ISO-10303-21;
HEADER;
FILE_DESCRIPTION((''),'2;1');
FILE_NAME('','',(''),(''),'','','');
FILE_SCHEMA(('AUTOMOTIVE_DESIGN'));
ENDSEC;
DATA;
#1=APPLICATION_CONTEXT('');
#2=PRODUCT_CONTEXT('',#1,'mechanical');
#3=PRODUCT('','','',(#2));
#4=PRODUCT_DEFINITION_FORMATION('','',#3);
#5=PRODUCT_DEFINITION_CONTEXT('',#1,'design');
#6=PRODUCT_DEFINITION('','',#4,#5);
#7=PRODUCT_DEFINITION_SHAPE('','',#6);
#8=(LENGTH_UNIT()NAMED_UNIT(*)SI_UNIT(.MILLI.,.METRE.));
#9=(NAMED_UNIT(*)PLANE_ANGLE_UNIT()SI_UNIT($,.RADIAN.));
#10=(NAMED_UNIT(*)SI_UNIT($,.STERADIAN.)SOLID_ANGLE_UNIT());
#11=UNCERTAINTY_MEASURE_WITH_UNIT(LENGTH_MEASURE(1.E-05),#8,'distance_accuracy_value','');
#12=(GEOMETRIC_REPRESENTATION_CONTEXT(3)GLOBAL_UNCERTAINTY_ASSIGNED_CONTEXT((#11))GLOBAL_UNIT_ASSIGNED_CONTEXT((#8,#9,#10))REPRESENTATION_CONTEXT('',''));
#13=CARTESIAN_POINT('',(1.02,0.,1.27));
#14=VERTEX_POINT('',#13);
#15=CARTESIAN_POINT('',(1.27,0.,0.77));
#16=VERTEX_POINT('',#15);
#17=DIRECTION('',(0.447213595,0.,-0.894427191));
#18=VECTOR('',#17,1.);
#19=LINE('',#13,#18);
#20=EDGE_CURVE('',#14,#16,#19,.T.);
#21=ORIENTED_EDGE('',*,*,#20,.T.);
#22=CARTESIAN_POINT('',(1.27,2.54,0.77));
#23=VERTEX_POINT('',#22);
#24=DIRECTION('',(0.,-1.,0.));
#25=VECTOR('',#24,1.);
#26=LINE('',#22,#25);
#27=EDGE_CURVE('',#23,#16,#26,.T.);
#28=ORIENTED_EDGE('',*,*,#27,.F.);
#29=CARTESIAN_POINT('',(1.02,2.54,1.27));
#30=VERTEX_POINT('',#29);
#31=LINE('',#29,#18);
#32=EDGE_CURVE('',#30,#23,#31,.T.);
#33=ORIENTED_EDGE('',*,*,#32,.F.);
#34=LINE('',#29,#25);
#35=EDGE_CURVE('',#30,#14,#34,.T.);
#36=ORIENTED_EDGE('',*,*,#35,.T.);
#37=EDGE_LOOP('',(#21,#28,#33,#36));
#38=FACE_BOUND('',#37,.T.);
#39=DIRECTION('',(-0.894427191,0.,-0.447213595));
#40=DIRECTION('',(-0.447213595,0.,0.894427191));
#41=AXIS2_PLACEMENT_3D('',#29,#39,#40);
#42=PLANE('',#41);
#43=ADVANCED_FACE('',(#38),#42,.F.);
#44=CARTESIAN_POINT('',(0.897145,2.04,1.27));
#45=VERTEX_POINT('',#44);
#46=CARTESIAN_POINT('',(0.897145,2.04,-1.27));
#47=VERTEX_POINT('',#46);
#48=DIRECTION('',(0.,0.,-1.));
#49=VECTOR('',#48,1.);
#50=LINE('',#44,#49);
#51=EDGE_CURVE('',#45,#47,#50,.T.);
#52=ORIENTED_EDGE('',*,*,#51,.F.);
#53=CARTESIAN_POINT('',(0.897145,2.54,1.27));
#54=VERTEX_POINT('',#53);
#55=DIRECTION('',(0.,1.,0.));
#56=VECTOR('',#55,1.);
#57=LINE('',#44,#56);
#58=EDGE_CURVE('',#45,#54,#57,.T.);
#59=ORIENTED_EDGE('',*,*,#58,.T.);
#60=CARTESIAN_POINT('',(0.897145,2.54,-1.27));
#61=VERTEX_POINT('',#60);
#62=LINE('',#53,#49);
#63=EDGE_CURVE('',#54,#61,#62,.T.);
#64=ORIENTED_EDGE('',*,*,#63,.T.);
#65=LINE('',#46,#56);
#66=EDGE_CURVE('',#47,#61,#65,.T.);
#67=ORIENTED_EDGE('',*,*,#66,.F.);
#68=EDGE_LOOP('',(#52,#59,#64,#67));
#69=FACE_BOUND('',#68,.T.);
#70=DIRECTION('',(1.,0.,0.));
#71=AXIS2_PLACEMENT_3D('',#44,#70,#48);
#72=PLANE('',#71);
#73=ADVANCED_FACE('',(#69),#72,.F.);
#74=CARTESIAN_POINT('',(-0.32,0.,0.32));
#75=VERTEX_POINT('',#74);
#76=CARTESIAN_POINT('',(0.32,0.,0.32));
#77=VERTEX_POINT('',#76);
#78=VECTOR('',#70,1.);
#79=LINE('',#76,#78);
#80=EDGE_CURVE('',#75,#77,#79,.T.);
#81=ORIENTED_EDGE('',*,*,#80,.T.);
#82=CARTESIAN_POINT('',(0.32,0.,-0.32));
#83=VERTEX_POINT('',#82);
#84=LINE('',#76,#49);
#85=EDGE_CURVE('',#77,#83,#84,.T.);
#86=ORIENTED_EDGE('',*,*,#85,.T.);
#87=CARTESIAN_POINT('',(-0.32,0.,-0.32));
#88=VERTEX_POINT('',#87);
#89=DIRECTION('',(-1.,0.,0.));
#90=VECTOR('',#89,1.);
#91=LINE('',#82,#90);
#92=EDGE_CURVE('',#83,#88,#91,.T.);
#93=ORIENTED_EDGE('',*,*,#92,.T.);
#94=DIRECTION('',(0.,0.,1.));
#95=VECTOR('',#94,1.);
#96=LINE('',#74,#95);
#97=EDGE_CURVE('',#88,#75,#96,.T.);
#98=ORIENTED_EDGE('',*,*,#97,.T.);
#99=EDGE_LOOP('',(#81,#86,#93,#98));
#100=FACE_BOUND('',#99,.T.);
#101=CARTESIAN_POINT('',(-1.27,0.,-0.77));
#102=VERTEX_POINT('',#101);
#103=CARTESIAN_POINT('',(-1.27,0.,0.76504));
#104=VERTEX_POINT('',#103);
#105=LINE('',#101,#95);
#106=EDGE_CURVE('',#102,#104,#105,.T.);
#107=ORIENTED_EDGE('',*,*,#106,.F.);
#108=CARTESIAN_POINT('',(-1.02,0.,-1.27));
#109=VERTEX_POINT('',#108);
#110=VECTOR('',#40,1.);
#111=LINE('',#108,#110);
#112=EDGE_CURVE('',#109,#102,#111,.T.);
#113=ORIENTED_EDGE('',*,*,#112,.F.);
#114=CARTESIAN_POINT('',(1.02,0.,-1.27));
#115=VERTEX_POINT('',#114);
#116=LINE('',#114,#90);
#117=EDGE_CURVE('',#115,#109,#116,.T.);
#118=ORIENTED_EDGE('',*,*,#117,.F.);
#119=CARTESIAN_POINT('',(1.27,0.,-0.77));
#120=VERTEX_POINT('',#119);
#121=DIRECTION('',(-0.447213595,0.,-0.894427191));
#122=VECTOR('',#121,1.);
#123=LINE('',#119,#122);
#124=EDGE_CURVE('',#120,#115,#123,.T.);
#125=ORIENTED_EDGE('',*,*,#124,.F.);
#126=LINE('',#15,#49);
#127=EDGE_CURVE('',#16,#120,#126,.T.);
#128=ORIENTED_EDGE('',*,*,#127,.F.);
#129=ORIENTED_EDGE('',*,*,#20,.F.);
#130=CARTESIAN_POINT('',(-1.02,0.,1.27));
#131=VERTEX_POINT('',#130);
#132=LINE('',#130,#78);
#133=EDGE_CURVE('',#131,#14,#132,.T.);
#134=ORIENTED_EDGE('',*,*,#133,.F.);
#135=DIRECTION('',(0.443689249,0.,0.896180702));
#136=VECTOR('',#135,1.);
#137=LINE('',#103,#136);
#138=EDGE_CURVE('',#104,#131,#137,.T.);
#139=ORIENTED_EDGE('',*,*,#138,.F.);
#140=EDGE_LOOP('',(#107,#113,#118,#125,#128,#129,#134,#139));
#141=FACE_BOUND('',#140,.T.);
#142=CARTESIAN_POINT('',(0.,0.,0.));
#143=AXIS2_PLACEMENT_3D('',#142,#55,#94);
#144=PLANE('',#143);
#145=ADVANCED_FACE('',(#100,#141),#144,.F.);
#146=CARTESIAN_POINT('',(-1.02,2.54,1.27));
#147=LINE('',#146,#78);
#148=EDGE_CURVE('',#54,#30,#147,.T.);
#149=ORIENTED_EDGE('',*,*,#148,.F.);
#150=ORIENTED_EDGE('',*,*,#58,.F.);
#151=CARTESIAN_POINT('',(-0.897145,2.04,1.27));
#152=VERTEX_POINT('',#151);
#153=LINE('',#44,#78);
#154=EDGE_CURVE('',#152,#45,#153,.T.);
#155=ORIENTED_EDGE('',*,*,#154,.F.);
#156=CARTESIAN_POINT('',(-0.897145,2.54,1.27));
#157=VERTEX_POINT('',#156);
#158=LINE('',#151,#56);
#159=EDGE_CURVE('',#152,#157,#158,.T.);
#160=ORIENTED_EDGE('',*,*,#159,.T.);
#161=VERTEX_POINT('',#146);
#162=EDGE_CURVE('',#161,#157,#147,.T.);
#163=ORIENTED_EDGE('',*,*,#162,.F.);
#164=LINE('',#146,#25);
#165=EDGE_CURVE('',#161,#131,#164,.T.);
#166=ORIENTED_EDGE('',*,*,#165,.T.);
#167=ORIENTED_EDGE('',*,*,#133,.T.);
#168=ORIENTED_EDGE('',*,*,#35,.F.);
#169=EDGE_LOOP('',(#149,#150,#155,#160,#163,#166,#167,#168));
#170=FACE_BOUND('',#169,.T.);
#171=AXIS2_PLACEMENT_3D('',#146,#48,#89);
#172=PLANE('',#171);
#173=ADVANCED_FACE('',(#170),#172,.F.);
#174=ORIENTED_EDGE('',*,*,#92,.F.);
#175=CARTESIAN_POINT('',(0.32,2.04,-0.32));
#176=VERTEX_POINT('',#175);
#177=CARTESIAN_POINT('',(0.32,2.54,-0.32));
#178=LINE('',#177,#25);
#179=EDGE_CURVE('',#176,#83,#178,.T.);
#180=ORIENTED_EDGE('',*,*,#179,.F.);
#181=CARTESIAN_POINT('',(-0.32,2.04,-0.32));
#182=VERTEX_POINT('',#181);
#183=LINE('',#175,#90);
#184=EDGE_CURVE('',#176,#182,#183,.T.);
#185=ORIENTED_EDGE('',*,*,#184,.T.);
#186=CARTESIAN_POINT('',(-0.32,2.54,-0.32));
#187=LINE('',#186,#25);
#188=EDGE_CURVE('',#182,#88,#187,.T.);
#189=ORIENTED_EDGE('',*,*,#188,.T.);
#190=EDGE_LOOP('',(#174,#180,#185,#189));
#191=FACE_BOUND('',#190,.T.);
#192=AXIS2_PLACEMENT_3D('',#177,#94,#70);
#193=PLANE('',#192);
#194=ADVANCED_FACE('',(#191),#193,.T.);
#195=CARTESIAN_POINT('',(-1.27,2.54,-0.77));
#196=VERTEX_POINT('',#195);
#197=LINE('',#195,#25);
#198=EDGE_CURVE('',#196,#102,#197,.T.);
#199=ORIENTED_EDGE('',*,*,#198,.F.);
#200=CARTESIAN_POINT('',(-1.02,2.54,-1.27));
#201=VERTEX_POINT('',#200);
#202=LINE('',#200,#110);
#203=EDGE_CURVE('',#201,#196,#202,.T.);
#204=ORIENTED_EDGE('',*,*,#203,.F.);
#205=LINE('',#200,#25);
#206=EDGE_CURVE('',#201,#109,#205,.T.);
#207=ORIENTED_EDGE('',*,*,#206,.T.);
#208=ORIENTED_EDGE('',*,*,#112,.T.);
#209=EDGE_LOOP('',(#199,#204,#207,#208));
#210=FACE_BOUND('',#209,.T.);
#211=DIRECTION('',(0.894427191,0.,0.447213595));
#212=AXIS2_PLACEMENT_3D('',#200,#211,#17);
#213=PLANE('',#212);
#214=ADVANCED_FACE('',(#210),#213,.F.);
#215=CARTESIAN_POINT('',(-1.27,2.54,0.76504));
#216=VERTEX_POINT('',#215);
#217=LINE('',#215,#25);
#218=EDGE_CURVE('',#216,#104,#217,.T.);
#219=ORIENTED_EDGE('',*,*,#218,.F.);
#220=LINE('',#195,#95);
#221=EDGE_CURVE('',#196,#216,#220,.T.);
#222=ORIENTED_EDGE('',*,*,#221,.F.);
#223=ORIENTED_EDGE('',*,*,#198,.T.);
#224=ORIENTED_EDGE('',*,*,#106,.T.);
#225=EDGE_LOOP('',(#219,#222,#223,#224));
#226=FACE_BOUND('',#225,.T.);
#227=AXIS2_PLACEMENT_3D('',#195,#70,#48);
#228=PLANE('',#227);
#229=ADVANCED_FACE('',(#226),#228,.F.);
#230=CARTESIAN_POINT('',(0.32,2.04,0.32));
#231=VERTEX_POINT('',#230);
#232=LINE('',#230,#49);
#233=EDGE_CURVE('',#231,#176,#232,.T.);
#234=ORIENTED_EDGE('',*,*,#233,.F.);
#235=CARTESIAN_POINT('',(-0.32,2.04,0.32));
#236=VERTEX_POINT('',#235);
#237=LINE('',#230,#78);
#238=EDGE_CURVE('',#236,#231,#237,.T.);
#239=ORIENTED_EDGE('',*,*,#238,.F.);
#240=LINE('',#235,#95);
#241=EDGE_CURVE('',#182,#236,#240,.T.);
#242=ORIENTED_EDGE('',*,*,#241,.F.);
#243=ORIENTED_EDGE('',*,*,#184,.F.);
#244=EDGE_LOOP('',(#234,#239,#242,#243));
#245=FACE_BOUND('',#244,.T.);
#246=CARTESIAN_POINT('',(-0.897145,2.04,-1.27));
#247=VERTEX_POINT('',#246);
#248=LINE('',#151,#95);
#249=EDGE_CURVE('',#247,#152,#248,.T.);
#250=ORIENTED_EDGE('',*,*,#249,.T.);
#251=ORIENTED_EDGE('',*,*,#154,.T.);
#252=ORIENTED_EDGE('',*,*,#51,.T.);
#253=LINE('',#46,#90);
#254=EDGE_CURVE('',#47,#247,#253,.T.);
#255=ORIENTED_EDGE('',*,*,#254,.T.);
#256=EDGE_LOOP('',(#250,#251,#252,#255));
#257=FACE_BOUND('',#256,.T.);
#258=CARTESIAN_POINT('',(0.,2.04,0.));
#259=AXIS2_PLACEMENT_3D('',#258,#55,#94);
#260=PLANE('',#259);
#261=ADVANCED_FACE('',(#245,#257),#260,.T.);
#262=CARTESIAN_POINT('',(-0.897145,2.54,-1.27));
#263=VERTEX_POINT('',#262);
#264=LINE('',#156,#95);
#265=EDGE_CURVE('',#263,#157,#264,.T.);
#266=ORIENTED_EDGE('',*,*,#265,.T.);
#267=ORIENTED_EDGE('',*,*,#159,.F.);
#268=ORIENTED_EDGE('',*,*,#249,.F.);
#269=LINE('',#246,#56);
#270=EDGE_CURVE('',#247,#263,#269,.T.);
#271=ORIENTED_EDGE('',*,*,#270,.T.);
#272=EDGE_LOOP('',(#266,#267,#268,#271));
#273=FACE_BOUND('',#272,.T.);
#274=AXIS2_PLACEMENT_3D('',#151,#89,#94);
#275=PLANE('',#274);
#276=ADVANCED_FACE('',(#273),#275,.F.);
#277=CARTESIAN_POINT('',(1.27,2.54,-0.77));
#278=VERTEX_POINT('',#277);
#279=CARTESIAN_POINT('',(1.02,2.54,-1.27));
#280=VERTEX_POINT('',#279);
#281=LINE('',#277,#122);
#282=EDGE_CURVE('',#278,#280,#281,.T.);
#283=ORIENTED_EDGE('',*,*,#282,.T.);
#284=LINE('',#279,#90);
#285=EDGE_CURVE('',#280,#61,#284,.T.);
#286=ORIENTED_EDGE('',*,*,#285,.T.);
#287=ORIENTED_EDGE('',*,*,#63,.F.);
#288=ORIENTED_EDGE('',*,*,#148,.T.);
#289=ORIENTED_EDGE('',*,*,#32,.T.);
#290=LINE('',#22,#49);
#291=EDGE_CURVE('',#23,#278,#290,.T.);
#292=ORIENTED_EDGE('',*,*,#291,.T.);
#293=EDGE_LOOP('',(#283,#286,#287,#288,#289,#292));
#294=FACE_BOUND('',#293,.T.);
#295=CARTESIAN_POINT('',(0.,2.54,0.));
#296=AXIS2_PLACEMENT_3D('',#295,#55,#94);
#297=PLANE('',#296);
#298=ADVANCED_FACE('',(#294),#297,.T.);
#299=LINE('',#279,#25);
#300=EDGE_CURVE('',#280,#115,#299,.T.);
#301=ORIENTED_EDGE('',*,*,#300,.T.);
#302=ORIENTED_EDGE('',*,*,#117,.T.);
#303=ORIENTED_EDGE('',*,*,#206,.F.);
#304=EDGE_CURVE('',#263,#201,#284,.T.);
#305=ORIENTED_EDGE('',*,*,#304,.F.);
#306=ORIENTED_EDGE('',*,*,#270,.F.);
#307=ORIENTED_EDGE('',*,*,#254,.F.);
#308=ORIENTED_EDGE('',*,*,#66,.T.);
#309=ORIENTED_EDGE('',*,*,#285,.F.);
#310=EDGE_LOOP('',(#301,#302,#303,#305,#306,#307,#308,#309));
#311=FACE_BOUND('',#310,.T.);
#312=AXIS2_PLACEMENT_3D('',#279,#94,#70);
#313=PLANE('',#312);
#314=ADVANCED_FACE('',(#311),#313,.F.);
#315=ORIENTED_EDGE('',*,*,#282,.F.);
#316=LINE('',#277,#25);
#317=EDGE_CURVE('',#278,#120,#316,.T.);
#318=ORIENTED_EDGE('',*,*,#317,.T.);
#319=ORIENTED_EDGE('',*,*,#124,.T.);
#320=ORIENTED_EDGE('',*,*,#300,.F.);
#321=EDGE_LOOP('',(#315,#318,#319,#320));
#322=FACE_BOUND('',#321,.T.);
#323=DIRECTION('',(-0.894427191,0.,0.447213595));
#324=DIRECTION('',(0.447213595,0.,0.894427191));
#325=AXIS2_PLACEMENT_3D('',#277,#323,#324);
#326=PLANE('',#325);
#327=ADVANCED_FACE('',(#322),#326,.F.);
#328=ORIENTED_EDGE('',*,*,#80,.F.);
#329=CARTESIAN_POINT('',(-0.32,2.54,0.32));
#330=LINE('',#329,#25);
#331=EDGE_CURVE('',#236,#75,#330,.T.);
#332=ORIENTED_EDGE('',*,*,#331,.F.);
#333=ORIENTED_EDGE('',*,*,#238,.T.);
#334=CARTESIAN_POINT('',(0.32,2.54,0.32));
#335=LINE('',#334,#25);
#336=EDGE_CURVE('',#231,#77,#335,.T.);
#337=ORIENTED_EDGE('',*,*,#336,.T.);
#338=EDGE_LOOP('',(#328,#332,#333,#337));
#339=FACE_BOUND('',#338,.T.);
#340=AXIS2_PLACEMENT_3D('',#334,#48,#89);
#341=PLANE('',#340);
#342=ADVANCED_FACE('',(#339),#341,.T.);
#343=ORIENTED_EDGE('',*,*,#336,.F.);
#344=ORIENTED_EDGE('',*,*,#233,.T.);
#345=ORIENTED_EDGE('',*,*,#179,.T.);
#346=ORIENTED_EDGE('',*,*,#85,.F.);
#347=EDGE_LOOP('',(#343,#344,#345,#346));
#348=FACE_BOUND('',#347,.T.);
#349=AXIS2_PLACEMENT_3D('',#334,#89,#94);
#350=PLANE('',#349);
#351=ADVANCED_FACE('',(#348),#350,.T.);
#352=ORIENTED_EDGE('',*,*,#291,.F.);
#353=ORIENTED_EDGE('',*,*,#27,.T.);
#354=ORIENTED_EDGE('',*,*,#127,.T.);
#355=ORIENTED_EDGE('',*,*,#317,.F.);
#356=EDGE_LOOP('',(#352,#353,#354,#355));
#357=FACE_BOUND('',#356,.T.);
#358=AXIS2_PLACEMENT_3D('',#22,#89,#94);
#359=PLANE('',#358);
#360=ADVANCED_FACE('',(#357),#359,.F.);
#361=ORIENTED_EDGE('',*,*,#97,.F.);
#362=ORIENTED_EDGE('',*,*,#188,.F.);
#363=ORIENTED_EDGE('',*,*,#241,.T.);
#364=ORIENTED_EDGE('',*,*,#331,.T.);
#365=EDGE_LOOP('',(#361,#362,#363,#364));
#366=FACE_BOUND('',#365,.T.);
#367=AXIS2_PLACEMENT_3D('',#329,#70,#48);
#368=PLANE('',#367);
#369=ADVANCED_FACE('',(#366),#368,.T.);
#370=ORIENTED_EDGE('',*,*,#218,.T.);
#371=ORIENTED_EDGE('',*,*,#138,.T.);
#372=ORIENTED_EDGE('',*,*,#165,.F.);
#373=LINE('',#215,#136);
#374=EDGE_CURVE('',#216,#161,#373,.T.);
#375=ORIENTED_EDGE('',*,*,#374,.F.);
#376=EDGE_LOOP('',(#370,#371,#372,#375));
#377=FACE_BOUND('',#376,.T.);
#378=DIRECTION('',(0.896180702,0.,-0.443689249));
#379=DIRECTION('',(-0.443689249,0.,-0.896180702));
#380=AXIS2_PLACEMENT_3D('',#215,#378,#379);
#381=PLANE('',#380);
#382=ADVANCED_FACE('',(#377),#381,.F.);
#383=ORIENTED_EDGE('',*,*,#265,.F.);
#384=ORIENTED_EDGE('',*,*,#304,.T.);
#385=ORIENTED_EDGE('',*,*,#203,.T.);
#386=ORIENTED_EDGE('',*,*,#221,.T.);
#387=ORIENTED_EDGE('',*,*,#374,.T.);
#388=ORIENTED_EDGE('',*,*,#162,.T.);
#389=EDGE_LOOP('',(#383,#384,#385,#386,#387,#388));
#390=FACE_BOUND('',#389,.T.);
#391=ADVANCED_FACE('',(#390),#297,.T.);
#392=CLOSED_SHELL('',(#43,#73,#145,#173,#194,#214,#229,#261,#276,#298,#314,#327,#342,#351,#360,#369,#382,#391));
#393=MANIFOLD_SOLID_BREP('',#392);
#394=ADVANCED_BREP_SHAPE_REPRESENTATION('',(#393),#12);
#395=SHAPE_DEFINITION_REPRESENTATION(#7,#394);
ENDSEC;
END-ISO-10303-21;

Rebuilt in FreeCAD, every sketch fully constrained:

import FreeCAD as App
import Part
import Sketcher
from FreeCAD import Vector
Q = App.Units.Quantity


def add_polygon(sketch, points):
    """Adds a closed chain of lines whose ends are joined by coincident constraints."""
    first, n = sketch.GeometryCount, len(points)
    for a, b in zip(points, points[1:] + points[:1]):
        sketch.addGeometry(Part.LineSegment(App.Vector(*a, 0), App.Vector(*b, 0)), False)
    for i in range(n):
        sketch.addConstraint(Sketcher.Constraint("Coincident", first + i, 2, first + (i + 1) % n, 1))

doc = App.newDocument("Part")
params = doc.addObject("Spreadsheet::Sheet", "Params")
for row, (alias, value) in enumerate([
    ("sketch1_width", "2.04 mm"),
    ("sketch1_width2", "0.64 mm"),
    ("sketch1_height", "1.54 mm"),
    ("pad1_length", "2.54 mm"),
    ("sketch2_height", "2.54 mm"),
    ("pocket1_length", "0.5 mm"),
], start=1):
    params.set(f"A{row}", alias)
    params.set(f"B{row}", "=" + value)
    params.setAlias(f"B{row}", alias)

body = doc.addObject("PartDesign::Body", "Body")

# Sketch on XZ plane
sketch1 = body.newObject("Sketcher::SketchObject", "Sketch")
sketch1.AttachmentSupport = (doc.getObject("XZ_Plane"), [""])
sketch1.MapMode = "FlatFace"
add_polygon(sketch1, [(-1, -1.3), (-1.3, -0.8), (-1.3, 0.8), (-1, 1.3), (1, 1.3), (1.3, 0.8), (1.3, -0.8), (1, -1.3)])  # lines 0-7
add_polygon(sketch1, [(0.3, 0.3), (-0.3, 0.3), (-0.3, -0.3), (0.3, -0.3)])  # lines 8-11
sketch1.addConstraint([
    Sketcher.Constraint("Vertical", 1),
    Sketcher.Constraint("Horizontal", 3),
    Sketcher.Constraint("Vertical", 5),
    Sketcher.Constraint("Horizontal", 7),
    Sketcher.Constraint("Horizontal", 8),
    Sketcher.Constraint("Vertical", 9),
    Sketcher.Constraint("Horizontal", 10),
    Sketcher.Constraint("Vertical", 11),
    Sketcher.Constraint("Symmetric", 0, 2, 4, 2, -1, 1),
    Sketcher.Constraint("Symmetric", 2, 2, 6, 2, -1, 1),
    Sketcher.Constraint("Symmetric", 8, 2, 10, 2, -1, 1),
    Sketcher.Constraint("Parallel", 0, 4),
    Sketcher.Constraint("Horizontal", 0, 2, 5, 2),
    Sketcher.Constraint("Vertical", 3, 2, 6, 2),
    Sketcher.Constraint("Equal", 10, 9),
    Sketcher.Constraint("DistanceX", 3, 1, 3, 2, Q("2.04 mm")),
    Sketcher.Constraint("DistanceX", 8, 2, 8, 1, Q("0.64 mm")),
    Sketcher.Constraint("DistanceY", 5, 2, 5, 1, Q("1.54 mm")),
    Sketcher.Constraint("DistanceY", 4, 2, 3, 2, Q("0.5 mm")),
    Sketcher.Constraint("DistanceX", 0, 2, -1, 1, Q("1.27 mm")),
    Sketcher.Constraint("DistanceY", 1, 1, 1, 2, Q("1.53504 mm")),
])
sketch1.setExpression("Constraints[27]", "Params.sketch1_width")
sketch1.setExpression("Constraints[28]", "Params.sketch1_width2")
sketch1.setExpression("Constraints[29]", "Params.sketch1_height")
pad1 = body.newObject("PartDesign::Pad", "Pad")
pad1.Profile = sketch1
pad1.setExpression("Length", "Params.pad1_length")
pad1.Reversed = True

# Sketch on XZ plane
sketch2 = body.newObject("Sketcher::SketchObject", "Sketch001")
sketch2.AttachmentSupport = (doc.getObject("XZ_Plane"), [""])
sketch2.MapMode = "FlatFace"
sketch2.AttachmentOffset = App.Placement(Vector(0, 0, -2.54), App.Rotation())
add_polygon(sketch2, [(-0.9, -1.3), (-0.9, 1.3), (0.9, 1.3), (0.9, -1.3)])  # lines 0-3
sketch2.addConstraint([
    Sketcher.Constraint("Vertical", 0),
    Sketcher.Constraint("Horizontal", 1),
    Sketcher.Constraint("Vertical", 2),
    Sketcher.Constraint("Horizontal", 3),
    Sketcher.Constraint("Symmetric", 0, 2, 2, 2, -1, 1),
    Sketcher.Constraint("DistanceY", 0, 1, 0, 2, Q("2.54 mm")),
    Sketcher.Constraint("DistanceX", 1, 1, 1, 2, Q("1.79429 mm")),
])
sketch2.setExpression("Constraints[9]", "Params.sketch2_height")
pocket1 = body.newObject("PartDesign::Pocket", "Pocket")
pocket1.Profile = sketch2
pocket1.setExpression("Length", "Params.pocket1_length")
pocket1.Reversed = True

doc.recompute()
